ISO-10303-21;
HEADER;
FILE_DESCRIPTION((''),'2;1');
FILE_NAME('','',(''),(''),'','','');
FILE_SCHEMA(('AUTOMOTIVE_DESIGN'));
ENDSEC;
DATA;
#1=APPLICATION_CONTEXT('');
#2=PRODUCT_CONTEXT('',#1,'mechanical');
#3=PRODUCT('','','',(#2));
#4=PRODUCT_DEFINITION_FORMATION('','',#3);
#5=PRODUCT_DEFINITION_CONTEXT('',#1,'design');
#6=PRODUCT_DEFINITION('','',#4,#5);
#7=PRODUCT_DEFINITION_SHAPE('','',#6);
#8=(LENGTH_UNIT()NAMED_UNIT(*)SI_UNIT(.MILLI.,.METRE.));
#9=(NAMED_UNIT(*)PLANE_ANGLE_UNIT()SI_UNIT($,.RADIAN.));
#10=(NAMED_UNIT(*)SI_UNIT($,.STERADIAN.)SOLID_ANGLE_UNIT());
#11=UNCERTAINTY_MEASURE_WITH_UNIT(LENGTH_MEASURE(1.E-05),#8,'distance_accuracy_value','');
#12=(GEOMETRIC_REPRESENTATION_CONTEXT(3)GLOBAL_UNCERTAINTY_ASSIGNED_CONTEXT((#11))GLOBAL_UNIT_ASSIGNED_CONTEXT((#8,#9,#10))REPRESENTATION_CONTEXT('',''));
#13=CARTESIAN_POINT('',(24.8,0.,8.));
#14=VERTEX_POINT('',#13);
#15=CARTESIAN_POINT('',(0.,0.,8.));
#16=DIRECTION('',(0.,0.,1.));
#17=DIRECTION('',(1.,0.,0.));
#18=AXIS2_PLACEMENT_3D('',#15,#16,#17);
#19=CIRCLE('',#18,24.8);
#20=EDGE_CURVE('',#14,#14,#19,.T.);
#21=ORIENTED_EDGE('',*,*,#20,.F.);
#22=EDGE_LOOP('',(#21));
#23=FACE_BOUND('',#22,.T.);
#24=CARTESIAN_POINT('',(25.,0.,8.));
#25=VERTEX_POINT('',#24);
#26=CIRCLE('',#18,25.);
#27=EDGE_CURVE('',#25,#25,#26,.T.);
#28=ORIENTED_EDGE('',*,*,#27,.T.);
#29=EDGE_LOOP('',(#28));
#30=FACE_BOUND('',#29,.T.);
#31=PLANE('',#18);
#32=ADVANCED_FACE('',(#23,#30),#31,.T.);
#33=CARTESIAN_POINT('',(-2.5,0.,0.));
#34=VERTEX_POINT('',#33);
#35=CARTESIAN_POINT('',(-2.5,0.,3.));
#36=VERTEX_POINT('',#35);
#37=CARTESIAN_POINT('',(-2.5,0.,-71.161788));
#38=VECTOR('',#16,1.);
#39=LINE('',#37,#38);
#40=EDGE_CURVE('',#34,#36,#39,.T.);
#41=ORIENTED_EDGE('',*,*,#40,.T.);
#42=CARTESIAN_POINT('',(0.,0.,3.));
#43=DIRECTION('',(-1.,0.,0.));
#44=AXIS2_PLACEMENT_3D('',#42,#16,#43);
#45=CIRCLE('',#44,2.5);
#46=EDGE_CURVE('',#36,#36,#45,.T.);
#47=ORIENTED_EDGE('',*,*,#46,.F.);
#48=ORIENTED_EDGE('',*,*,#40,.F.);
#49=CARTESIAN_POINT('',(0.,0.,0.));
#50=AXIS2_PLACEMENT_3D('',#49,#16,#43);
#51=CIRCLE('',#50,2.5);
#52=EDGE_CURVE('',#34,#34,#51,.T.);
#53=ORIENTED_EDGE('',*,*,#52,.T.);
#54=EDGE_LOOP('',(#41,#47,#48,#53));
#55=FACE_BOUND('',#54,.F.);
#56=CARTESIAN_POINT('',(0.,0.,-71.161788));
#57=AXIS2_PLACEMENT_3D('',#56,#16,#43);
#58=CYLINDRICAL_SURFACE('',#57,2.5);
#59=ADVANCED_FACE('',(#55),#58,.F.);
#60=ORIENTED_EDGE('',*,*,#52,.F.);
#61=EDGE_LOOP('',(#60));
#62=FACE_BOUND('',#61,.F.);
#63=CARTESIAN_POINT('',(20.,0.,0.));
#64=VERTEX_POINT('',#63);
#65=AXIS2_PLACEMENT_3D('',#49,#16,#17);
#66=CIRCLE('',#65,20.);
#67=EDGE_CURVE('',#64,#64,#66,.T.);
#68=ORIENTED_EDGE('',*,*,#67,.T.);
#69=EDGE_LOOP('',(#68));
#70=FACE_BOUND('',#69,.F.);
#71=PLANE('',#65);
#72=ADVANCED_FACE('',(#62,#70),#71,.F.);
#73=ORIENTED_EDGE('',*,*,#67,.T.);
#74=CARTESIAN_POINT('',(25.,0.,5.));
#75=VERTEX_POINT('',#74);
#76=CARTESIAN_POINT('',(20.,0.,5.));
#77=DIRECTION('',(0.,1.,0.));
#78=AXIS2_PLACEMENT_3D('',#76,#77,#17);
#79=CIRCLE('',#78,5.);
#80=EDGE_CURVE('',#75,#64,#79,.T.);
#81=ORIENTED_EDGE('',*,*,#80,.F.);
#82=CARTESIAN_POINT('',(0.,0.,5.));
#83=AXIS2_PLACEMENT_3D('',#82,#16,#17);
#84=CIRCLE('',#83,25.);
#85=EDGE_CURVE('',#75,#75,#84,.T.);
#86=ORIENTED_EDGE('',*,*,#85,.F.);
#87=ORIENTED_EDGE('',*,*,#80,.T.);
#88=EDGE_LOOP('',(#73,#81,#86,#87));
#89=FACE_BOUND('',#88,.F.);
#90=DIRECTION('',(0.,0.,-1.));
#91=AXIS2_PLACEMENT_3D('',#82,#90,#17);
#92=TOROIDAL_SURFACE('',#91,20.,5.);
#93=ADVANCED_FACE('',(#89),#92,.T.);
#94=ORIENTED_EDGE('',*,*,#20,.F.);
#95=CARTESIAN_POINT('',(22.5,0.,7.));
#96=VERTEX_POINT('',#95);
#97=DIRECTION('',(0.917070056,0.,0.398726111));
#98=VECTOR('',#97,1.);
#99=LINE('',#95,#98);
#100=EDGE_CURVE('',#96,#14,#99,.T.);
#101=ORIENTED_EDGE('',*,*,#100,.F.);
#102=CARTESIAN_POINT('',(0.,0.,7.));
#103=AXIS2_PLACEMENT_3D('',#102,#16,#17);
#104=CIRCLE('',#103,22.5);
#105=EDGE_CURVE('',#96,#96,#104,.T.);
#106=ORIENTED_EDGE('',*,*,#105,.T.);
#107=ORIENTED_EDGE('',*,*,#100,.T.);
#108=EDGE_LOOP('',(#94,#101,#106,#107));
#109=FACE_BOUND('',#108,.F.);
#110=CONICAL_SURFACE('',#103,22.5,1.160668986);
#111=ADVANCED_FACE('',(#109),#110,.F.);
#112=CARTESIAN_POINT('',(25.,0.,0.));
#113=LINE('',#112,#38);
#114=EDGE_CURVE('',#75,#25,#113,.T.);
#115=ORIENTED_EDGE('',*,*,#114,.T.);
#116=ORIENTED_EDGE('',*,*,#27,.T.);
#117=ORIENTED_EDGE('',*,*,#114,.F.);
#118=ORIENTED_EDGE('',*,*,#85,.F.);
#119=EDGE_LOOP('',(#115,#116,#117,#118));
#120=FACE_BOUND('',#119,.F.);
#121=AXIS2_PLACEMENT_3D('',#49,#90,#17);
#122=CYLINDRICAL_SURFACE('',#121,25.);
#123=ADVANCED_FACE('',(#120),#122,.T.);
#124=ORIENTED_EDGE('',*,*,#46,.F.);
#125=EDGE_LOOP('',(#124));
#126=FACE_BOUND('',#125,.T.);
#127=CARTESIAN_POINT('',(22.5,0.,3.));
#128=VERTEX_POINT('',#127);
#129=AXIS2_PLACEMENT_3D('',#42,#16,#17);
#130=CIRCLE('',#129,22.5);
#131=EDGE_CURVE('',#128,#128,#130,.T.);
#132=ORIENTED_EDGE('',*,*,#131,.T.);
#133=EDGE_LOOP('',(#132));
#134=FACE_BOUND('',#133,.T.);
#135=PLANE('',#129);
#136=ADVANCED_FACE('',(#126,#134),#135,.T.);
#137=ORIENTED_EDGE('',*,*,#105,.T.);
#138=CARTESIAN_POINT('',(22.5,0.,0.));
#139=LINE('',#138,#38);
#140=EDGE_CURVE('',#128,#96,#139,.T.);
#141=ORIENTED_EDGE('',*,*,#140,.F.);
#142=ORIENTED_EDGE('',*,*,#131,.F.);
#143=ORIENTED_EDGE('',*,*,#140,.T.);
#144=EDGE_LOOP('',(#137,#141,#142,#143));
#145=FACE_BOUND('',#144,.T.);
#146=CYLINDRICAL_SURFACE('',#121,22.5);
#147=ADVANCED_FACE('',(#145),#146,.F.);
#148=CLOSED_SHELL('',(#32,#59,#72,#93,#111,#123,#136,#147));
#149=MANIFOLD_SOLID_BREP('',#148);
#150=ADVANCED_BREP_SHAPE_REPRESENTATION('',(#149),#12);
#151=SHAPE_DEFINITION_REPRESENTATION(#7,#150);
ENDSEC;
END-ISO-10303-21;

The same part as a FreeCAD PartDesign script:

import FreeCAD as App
import Part
import Sketcher
from FreeCAD import Vector


def edges_at(feature, points):
    """Names of the edges that pass closest to the given points."""
    edges = feature.Shape.Edges
    near = lambda p: min(range(len(edges)), key=lambda i: edges[i].distToShape(Part.Vertex(*p))[0])
    return sorted({f"Edge{near(p) + 1}" for p in points})

doc = App.newDocument("Part")
body = doc.addObject("PartDesign::Body", "Body")

sketch1 = body.newObject("Sketcher::SketchObject", "Sketch")
sketch1.AttachmentSupport = (doc.getObject("XY_Plane"), [""])
sketch1.MapMode = "FlatFace"
sketch1.addGeometry(Part.Circle(Vector(0, 0, 0), Vector(0, 0, 1), 22), False)
sketch1.addConstraint([
    Sketcher.Constraint("Coincident", 0, 3, -1, 1),
    Sketcher.Constraint("Diameter", 0, 45.0),
])
pad1 = body.newObject("PartDesign::Pad", "Pad")
pad1.Profile = sketch1
pad1.Length = 3

sketch2 = body.newObject("Sketcher::SketchObject", "Sketch001")
sketch2.AttachmentSupport = (doc.getObject("XY_Plane"), [""])
sketch2.MapMode = "FlatFace"
sketch2.addGeometry([
    Part.Circle(Vector(0, 0, 0), Vector(0, 0, 1), 25),
    Part.Circle(Vector(0, 0, 0), Vector(0, 0, 1), 22),
], False)
sketch2.addConstraint([
    Sketcher.Constraint("Coincident", 0, 3, -1, 1),
    Sketcher.Constraint("Coincident", 1, 3, -1, 1),
    Sketcher.Constraint("Diameter", 0, 50.0),
    Sketcher.Constraint("Diameter", 1, 45.0),
])
pad2 = body.newObject("PartDesign::Pad", "Pad001")
pad2.Profile = sketch2
pad2.Length = 8
doc.recompute()

fillet = body.newObject("PartDesign::Fillet", "Fillet")
fillet.Base = (pad2, edges_at(pad2, [(-25, 0, 0)]))
fillet.Radius = 5
doc.recompute()

chamfer = body.newObject("PartDesign::Chamfer", "Chamfer")
chamfer.Base = (fillet, edges_at(fillet, [(-22.5, 0, 8)]))
chamfer.ChamferType = "Two distances"
chamfer.Size = 1
chamfer.Size2 = 2.3
chamfer.FlipDirection = True

sketch3 = body.newObject("Sketcher::SketchObject", "Sketch002")
sketch3.AttachmentSupport = (doc.getObject("XY_Plane"), [""])
sketch3.MapMode = "FlatFace"
sketch3.addGeometry(Part.Circle(Vector(0, 0, 0), Vector(0, 0, 1), 2.5), False)
sketch3.addConstraint([
    Sketcher.Constraint("Coincident", 0, 3, -1, 1),
    Sketcher.Constraint("Diameter", 0, 5.0),
])
doc.recompute()
hole = body.newObject("PartDesign::Hole", "Hole")
hole.Profile = sketch3
hole.ThreadType = "None"
hole.Diameter = 5
hole.DepthType = "ThroughAll"
hole.Reversed = True

doc.recompute()
